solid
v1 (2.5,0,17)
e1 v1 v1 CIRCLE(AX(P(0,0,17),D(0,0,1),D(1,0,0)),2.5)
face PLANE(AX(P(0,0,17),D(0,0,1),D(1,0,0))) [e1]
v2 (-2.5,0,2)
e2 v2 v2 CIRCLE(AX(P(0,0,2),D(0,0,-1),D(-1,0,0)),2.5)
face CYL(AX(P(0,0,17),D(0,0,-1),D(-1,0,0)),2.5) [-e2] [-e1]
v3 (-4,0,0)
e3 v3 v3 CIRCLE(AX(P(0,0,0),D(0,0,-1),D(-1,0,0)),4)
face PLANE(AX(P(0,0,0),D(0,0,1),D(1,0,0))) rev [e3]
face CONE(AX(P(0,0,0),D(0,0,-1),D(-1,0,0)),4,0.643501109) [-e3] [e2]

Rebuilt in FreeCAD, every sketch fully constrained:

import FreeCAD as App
import Part
import Sketcher


def add_polygon(sketch, points):
    """Adds a closed chain of lines whose ends are joined by coincident constraints."""
    first, n = sketch.GeometryCount, len(points)
    for a, b in zip(points, points[1:] + points[:1]):
        sketch.addGeometry(Part.LineSegment(App.Vector(*a, 0), App.Vector(*b, 0)), False)
    for i in range(n):
        sketch.addConstraint(Sketcher.Constraint("Coincident", first + i, 2, first + (i + 1) % n, 1))

doc = App.newDocument("Part")
body = doc.addObject("PartDesign::Body", "Body")

sketch1 = doc.addObject("Sketcher::SketchObject", "Sketch")
body.addObject(sketch1)
sketch1.AttachmentSupport = (doc.XY_Plane, [""])
sketch1.MapMode = "FlatFace"
sketch1.addGeometry(Part.Circle(App.Vector(0, 0, 0), App.Vector(0, 0, 1), 4), False)
sketch1.addConstraint([
    Sketcher.Constraint("Coincident", 0, 3, -1, 1),
    Sketcher.Constraint("Diameter", 0, 8.0),
])
pad1 = doc.addObject("PartDesign::Pad", "Pad")
body.addObject(pad1)
pad1.Profile = sketch1
pad1.Length = 2

sketch2 = doc.addObject("Sketcher::SketchObject", "Sketch001")
body.addObject(sketch2)
sketch2.AttachmentSupport = (doc.XY_Plane, [""])
sketch2.MapMode = "FlatFace"
sketch2.AttachmentOffset = App.Placement(App.Vector(0, 0, 2), App.Rotation())
sketch2.addGeometry(Part.Circle(App.Vector(0, 0, 0), App.Vector(0, 0, 1), 2.5), False)
sketch2.addConstraint([
    Sketcher.Constraint("Coincident", 0, 3, -1, 1),
    Sketcher.Constraint("Diameter", 0, 5.0),
])
pad2 = doc.addObject("PartDesign::Pad", "Pad001")
body.addObject(pad2)
pad2.Profile = sketch2
pad2.Length = 15

sketch3 = doc.addObject("Sketcher::SketchObject", "Sketch002")
body.addObject(sketch3)
sketch3.AttachmentSupport = (doc.YZ_Plane, [""])
sketch3.MapMode = "FlatFace"
add_polygon(sketch3, [(-2.5, 2), (-4, 2), (-4, 0)])
sketch3.addConstraint([
    Sketcher.Constraint("Horizontal", 0),
    Sketcher.Constraint("Vertical", 1),
    Sketcher.Constraint("PointOnObject", 1, 2, -1),
    Sketcher.Constraint("DistanceY", 1, 2, 1, 1, 2.0),
    Sketcher.Constraint("DistanceX", 0, 2, 0, 1, 1.5),
    Sketcher.Constraint("DistanceX", 0, 2, -1, 1, 4.0),
])
groove = doc.addObject("PartDesign::Groove", "Groove")
body.addObject(groove)
groove.Profile = sketch3
groove.ReferenceAxis = (sketch3, ["V_Axis"])
groove.Angle = 360

doc.recompute()
